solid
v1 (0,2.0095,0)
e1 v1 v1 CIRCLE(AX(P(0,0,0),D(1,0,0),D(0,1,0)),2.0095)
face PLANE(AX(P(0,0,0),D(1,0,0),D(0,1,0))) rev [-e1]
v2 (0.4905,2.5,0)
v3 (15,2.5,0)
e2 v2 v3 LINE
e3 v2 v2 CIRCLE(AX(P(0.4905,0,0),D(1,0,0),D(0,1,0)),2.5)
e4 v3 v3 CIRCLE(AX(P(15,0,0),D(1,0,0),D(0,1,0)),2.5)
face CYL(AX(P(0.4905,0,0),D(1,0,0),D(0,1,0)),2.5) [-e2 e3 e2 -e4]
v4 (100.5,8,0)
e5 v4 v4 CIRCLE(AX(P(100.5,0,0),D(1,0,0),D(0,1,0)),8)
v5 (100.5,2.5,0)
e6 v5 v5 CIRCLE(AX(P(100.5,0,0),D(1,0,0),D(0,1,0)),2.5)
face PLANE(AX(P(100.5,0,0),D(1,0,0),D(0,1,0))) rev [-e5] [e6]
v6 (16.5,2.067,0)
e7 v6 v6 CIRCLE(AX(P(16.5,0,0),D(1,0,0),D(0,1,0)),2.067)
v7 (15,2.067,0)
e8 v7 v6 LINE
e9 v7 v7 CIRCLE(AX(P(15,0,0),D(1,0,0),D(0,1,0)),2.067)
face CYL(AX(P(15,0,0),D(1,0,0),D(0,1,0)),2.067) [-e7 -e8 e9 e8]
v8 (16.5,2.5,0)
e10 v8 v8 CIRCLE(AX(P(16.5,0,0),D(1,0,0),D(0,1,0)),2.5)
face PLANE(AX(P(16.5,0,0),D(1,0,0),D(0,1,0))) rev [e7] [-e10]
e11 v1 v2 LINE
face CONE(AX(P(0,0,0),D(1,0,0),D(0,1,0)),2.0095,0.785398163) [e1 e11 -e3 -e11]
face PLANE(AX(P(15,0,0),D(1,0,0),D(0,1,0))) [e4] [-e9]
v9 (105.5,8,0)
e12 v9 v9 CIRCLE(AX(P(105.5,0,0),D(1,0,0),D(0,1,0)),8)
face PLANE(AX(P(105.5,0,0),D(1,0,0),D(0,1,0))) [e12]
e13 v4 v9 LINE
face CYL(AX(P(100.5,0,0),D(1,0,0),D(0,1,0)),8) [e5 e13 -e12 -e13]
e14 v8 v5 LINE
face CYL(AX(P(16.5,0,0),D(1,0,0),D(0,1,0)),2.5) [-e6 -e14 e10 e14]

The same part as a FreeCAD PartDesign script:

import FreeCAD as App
import Part
import Sketcher
Q = App.Units.Quantity


def add_polygon(sketch, points):
    """Adds a closed chain of lines whose ends are joined by coincident constraints."""
    first, n = sketch.GeometryCount, len(points)
    for a, b in zip(points, points[1:] + points[:1]):
        sketch.addGeometry(Part.LineSegment(App.Vector(*a, 0), App.Vector(*b, 0)), False)
    for i in range(n):
        sketch.addConstraint(Sketcher.Constraint("Coincident", first + i, 2, first + (i + 1) % n, 1))

doc = App.newDocument("Part")
body = doc.addObject("PartDesign::Body", "Body")

# Sketch on XY plane
sketch1 = body.newObject("Sketcher::SketchObject", "Sketch")
sketch1.AttachmentSupport = (doc.getObject("XY_Plane"), [""])
sketch1.MapMode = "FlatFace"
add_polygon(sketch1, [(0, 0), (105.5, 0), (105.5, 8), (100.5, 8), (100.5, 2.5), (16.5, 2.5), (16.5, 2.07), (15, 2.07), (15, 2.5), (0.49, 2.5), (0, 2.01)])  # lines 0-10
sketch1.addConstraint(Sketcher.Constraint("Horizontal", 0))
sketch1.addConstraint(Sketcher.Constraint("Vertical", 1))
sketch1.addConstraint(Sketcher.Constraint("Horizontal", 2))
sketch1.addConstraint(Sketcher.Constraint("Vertical", 3))
sketch1.addConstraint(Sketcher.Constraint("Horizontal", 4))
sketch1.addConstraint(Sketcher.Constraint("Vertical", 5))
sketch1.addConstraint(Sketcher.Constraint("Horizontal", 6))
sketch1.addConstraint(Sketcher.Constraint("Vertical", 7))
sketch1.addConstraint(Sketcher.Constraint("Horizontal", 8))
sketch1.addConstraint(Sketcher.Constraint("Vertical", 10))
sketch1.addConstraint(Sketcher.Constraint("Coincident", 10, 2, -1, 1))
sketch1.addConstraint(Sketcher.Constraint("Horizontal", 4, 2, 7, 2))
sketch1.addConstraint(Sketcher.Constraint("DistanceX", 2, 2, 2, 1, 5.0))
sketch1.addConstraint(Sketcher.Constraint("DistanceX", 4, 2, 4, 1, 84.0))
sketch1.addConstraint(Sketcher.Constraint("DistanceY", 1, 1, 1, 2, 8.0))
sketch1.addConstraint(Sketcher.Constraint("Angle", 9, Q("-135 deg")))
sketch1.addConstraint(Sketcher.Constraint("DistanceX", 0, 1, 0, 2, 105.5))
sketch1.addConstraint(Sketcher.Constraint("DistanceX", 6, 2, 6, 1, 1.5))
sketch1.addConstraint(Sketcher.Constraint("DistanceY", 3, 2, 3, 1, 5.5))
sketch1.addConstraint(Sketcher.Constraint("DistanceY", 5, 2, 5, 1, 0.433))
sketch1.addConstraint(Sketcher.Constraint("DistanceX", 8, 2, 8, 1, 14.5095))
revolution = body.newObject("PartDesign::Revolution", "Revolution")
revolution.Profile = sketch1
revolution.ReferenceAxis = (sketch1, ["H_Axis"])
revolution.Angle = 360

doc.recompute()
